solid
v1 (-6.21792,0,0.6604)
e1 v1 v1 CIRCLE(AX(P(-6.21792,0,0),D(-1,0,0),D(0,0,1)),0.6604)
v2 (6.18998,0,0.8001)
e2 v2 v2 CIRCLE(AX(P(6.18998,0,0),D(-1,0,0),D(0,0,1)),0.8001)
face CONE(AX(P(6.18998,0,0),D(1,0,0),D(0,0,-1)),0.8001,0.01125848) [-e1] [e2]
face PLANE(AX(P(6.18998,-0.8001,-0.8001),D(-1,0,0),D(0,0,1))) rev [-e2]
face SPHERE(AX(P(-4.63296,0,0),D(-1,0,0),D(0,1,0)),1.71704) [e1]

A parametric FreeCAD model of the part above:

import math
import FreeCAD as App
import Part
import Sketcher
Q = App.Units.Quantity

doc = App.newDocument("Part")
body = doc.addObject("PartDesign::Body", "Body")

# Sketch on XY plane
sketch1 = body.newObject("Sketcher::SketchObject", "Sketch")
sketch1.AttachmentSupport = (doc.getObject("XY_Plane"), [""])
sketch1.MapMode = "FlatFace"
sketch1.addGeometry([
    Part.LineSegment(App.Vector(6.2, 0.8, 0), App.Vector(-6.2, 0.7, 0)),
    Part.ArcOfCircle(Part.Circle(App.Vector(-4.6, 0, 0), App.Vector(0, 0, 1), 1.7), math.radians(157), math.radians(180)),
    Part.LineSegment(App.Vector(-6.3, 0, 0), App.Vector(6.3, 0, 0)),
    Part.ArcOfCircle(Part.Circle(App.Vector(4.3, 0, 0), App.Vector(0, 0, 1), 2.1), math.radians(0), math.radians(23)),
], False)
sketch1.addConstraint([
    Sketcher.Constraint("Coincident", 0, 2, 1, 1),
    Sketcher.Constraint("Coincident", 1, 2, 2, 1),
    Sketcher.Constraint("Coincident", 2, 2, 3, 1),
    Sketcher.Constraint("Coincident", 3, 2, 0, 1),
    Sketcher.Constraint("Horizontal", 2),
    Sketcher.Constraint("Symmetric", 1, 2, 2, 2, -1, 1),
    Sketcher.Constraint("PointOnObject", 1, 3, -1),
    Sketcher.Constraint("PointOnObject", 3, 3, -1),
    Sketcher.Constraint("DistanceX", 2, 1, 2, 2, Q("0.5 in")),
    Sketcher.Constraint("Radius", 1, Q("0.0676 in")),
    Sketcher.Constraint("Radius", 3, Q("0.0819 in")),
    Sketcher.Constraint("DistanceY", -1, 1, 0, 2, Q("0.026 in")),
    Sketcher.Constraint("DistanceX", -1, 1, 3, 2, Q("0.2437 in")),
])
revolution = body.newObject("PartDesign::Revolution", "Revolution")
revolution.Profile = sketch1
revolution.ReferenceAxis = (sketch1, ["H_Axis"])
revolution.Angle = 360

# Sketch on XY plane
sketch2 = body.newObject("Sketcher::SketchObject", "Sketch001")
sketch2.AttachmentSupport = (doc.getObject("XY_Plane"), [""])
sketch2.MapMode = "FlatFace"
sketch2.addGeometry([
    Part.LineSegment(App.Vector(6.19, 0.8, 0), App.Vector(6.19, -0.8, 0)),
    Part.LineSegment(App.Vector(6.19, -0.8, 0), App.Vector(6.68, -0.8, 0)),
    Part.LineSegment(App.Vector(6.68, -0.8, 0), App.Vector(6.68, 0.8, 0)),
    Part.LineSegment(App.Vector(6.68, 0.8, 0), App.Vector(6.19, 0.8, 0)),
], False)
sketch2.addConstraint([
    Sketcher.Constraint("Coincident", 0, 2, 1, 1),
    Sketcher.Constraint("Coincident", 1, 2, 2, 1),
    Sketcher.Constraint("Coincident", 2, 2, 3, 1),
    Sketcher.Constraint("Coincident", 3, 2, 0, 1),
    Sketcher.Constraint("Vertical", 0),
    Sketcher.Constraint("Horizontal", 1),
    Sketcher.Constraint("Vertical", 2),
    Sketcher.Constraint("Horizontal", 3),
    Sketcher.Constraint("DistanceY", 0, 2, 0, 1, Q("0.063 in")),
    Sketcher.Constraint("DistanceX", -1, 1, 0, 2, Q("0.2437 in")),
    Sketcher.Constraint("DistanceY", 0, 2, -1, 1, Q("0.0315 in")),
    Sketcher.Constraint("DistanceX", 1, 1, 1, 2, 0.493953),
])
pocket1 = body.newObject("PartDesign::Pocket", "Pocket")
pocket1.Profile = sketch2
pocket1.Type = "ThroughAll"
pocket1.Midplane = True

doc.recompute()
